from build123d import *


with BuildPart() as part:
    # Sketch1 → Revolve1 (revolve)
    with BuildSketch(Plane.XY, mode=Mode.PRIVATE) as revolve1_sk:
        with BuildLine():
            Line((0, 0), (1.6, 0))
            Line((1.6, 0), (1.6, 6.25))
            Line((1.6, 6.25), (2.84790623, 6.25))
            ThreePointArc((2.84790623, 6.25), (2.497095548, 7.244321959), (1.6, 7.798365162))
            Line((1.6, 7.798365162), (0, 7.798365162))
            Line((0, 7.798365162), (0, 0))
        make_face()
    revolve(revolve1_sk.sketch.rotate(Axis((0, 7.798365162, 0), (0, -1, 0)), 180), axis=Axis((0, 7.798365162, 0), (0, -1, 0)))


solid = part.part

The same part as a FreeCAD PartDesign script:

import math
import FreeCAD as App
import Part
import Sketcher

V = App.Vector

doc = App.newDocument("Part")
params = doc.addObject("Spreadsheet::Sheet", "Params")
for row, (alias, value) in enumerate([
    ("sketch1_width", "1.6 mm"),
    ("sketch1_height", "6.25 mm"),
    ("revolution_angle", "360 deg"),
], start=1):
    params.set(f"A{row}", alias)
    params.set(f"B{row}", "=" + value)
    params.setAlias(f"B{row}", alias)

body = doc.addObject("PartDesign::Body", "Body")

# Sketch on XY plane
sketch1 = body.newObject("Sketcher::SketchObject", "Sketch")
sketch1.AttachmentSupport = (doc.getObject("XY_Plane"), [""])
sketch1.MapMode = "FlatFace"
sketch1.addGeometry([
    Part.LineSegment(V(0, 0, 0), V(1.6, 0, 0)),  # 0
    Part.LineSegment(V(1.6, 0, 0), V(1.6, 6.2, 0)),  # 1
    Part.LineSegment(V(1.6, 6.2, 0), V(2.8, 6.2, 0)),  # 2
    Part.ArcOfCircle(Part.Circle(V(1.3, 6.2, 0), V(0, 0, 1), 1.6), math.radians(0), math.radians(78)),  # 3
    Part.LineSegment(V(1.6, 7.8, 0), V(0, 7.8, 0)),  # 4
    Part.LineSegment(V(0, 7.8, 0), V(0, 0, 0)),  # 5
], False)
sketch1.addConstraint([
    Sketcher.Constraint("Coincident", 0, 2, 1, 1),
    Sketcher.Constraint("Coincident", 1, 2, 2, 1),
    Sketcher.Constraint("Coincident", 2, 2, 3, 1),
    Sketcher.Constraint("Coincident", 3, 2, 4, 1),
    Sketcher.Constraint("Coincident", 4, 2, 5, 1),
    Sketcher.Constraint("Coincident", 5, 2, 0, 1),
    Sketcher.Constraint("Horizontal", 0),
    Sketcher.Constraint("Vertical", 1),
    Sketcher.Constraint("Horizontal", 2),
    Sketcher.Constraint("Horizontal", 4),
    Sketcher.Constraint("Vertical", 5),
    Sketcher.Constraint("Coincident", 5, 2, -1, 1),
    Sketcher.Constraint("Horizontal", 3, 3, 1, 2),
    Sketcher.Constraint("Vertical", 1, 2, 3, 2),
    Sketcher.Constraint("DistanceX", 0, 1, 0, 2, 1.6),
    Sketcher.Constraint("DistanceY", 1, 1, 1, 2, 6.25),
    Sketcher.Constraint("Radius", 3, 1.584536),
    Sketcher.Constraint("DistanceX", 2, 1, 2, 2, 1.247906),
])
sketch1.setExpression("Constraints[14]", "Params.sketch1_width")
sketch1.setExpression("Constraints[15]", "Params.sketch1_height")
revolution = body.newObject("PartDesign::Revolution", "Revolution")
revolution.Profile = sketch1
revolution.ReferenceAxis = (sketch1, ["V_Axis"])
revolution.setExpression("Angle", "Params.revolution_angle")

doc.recompute()
